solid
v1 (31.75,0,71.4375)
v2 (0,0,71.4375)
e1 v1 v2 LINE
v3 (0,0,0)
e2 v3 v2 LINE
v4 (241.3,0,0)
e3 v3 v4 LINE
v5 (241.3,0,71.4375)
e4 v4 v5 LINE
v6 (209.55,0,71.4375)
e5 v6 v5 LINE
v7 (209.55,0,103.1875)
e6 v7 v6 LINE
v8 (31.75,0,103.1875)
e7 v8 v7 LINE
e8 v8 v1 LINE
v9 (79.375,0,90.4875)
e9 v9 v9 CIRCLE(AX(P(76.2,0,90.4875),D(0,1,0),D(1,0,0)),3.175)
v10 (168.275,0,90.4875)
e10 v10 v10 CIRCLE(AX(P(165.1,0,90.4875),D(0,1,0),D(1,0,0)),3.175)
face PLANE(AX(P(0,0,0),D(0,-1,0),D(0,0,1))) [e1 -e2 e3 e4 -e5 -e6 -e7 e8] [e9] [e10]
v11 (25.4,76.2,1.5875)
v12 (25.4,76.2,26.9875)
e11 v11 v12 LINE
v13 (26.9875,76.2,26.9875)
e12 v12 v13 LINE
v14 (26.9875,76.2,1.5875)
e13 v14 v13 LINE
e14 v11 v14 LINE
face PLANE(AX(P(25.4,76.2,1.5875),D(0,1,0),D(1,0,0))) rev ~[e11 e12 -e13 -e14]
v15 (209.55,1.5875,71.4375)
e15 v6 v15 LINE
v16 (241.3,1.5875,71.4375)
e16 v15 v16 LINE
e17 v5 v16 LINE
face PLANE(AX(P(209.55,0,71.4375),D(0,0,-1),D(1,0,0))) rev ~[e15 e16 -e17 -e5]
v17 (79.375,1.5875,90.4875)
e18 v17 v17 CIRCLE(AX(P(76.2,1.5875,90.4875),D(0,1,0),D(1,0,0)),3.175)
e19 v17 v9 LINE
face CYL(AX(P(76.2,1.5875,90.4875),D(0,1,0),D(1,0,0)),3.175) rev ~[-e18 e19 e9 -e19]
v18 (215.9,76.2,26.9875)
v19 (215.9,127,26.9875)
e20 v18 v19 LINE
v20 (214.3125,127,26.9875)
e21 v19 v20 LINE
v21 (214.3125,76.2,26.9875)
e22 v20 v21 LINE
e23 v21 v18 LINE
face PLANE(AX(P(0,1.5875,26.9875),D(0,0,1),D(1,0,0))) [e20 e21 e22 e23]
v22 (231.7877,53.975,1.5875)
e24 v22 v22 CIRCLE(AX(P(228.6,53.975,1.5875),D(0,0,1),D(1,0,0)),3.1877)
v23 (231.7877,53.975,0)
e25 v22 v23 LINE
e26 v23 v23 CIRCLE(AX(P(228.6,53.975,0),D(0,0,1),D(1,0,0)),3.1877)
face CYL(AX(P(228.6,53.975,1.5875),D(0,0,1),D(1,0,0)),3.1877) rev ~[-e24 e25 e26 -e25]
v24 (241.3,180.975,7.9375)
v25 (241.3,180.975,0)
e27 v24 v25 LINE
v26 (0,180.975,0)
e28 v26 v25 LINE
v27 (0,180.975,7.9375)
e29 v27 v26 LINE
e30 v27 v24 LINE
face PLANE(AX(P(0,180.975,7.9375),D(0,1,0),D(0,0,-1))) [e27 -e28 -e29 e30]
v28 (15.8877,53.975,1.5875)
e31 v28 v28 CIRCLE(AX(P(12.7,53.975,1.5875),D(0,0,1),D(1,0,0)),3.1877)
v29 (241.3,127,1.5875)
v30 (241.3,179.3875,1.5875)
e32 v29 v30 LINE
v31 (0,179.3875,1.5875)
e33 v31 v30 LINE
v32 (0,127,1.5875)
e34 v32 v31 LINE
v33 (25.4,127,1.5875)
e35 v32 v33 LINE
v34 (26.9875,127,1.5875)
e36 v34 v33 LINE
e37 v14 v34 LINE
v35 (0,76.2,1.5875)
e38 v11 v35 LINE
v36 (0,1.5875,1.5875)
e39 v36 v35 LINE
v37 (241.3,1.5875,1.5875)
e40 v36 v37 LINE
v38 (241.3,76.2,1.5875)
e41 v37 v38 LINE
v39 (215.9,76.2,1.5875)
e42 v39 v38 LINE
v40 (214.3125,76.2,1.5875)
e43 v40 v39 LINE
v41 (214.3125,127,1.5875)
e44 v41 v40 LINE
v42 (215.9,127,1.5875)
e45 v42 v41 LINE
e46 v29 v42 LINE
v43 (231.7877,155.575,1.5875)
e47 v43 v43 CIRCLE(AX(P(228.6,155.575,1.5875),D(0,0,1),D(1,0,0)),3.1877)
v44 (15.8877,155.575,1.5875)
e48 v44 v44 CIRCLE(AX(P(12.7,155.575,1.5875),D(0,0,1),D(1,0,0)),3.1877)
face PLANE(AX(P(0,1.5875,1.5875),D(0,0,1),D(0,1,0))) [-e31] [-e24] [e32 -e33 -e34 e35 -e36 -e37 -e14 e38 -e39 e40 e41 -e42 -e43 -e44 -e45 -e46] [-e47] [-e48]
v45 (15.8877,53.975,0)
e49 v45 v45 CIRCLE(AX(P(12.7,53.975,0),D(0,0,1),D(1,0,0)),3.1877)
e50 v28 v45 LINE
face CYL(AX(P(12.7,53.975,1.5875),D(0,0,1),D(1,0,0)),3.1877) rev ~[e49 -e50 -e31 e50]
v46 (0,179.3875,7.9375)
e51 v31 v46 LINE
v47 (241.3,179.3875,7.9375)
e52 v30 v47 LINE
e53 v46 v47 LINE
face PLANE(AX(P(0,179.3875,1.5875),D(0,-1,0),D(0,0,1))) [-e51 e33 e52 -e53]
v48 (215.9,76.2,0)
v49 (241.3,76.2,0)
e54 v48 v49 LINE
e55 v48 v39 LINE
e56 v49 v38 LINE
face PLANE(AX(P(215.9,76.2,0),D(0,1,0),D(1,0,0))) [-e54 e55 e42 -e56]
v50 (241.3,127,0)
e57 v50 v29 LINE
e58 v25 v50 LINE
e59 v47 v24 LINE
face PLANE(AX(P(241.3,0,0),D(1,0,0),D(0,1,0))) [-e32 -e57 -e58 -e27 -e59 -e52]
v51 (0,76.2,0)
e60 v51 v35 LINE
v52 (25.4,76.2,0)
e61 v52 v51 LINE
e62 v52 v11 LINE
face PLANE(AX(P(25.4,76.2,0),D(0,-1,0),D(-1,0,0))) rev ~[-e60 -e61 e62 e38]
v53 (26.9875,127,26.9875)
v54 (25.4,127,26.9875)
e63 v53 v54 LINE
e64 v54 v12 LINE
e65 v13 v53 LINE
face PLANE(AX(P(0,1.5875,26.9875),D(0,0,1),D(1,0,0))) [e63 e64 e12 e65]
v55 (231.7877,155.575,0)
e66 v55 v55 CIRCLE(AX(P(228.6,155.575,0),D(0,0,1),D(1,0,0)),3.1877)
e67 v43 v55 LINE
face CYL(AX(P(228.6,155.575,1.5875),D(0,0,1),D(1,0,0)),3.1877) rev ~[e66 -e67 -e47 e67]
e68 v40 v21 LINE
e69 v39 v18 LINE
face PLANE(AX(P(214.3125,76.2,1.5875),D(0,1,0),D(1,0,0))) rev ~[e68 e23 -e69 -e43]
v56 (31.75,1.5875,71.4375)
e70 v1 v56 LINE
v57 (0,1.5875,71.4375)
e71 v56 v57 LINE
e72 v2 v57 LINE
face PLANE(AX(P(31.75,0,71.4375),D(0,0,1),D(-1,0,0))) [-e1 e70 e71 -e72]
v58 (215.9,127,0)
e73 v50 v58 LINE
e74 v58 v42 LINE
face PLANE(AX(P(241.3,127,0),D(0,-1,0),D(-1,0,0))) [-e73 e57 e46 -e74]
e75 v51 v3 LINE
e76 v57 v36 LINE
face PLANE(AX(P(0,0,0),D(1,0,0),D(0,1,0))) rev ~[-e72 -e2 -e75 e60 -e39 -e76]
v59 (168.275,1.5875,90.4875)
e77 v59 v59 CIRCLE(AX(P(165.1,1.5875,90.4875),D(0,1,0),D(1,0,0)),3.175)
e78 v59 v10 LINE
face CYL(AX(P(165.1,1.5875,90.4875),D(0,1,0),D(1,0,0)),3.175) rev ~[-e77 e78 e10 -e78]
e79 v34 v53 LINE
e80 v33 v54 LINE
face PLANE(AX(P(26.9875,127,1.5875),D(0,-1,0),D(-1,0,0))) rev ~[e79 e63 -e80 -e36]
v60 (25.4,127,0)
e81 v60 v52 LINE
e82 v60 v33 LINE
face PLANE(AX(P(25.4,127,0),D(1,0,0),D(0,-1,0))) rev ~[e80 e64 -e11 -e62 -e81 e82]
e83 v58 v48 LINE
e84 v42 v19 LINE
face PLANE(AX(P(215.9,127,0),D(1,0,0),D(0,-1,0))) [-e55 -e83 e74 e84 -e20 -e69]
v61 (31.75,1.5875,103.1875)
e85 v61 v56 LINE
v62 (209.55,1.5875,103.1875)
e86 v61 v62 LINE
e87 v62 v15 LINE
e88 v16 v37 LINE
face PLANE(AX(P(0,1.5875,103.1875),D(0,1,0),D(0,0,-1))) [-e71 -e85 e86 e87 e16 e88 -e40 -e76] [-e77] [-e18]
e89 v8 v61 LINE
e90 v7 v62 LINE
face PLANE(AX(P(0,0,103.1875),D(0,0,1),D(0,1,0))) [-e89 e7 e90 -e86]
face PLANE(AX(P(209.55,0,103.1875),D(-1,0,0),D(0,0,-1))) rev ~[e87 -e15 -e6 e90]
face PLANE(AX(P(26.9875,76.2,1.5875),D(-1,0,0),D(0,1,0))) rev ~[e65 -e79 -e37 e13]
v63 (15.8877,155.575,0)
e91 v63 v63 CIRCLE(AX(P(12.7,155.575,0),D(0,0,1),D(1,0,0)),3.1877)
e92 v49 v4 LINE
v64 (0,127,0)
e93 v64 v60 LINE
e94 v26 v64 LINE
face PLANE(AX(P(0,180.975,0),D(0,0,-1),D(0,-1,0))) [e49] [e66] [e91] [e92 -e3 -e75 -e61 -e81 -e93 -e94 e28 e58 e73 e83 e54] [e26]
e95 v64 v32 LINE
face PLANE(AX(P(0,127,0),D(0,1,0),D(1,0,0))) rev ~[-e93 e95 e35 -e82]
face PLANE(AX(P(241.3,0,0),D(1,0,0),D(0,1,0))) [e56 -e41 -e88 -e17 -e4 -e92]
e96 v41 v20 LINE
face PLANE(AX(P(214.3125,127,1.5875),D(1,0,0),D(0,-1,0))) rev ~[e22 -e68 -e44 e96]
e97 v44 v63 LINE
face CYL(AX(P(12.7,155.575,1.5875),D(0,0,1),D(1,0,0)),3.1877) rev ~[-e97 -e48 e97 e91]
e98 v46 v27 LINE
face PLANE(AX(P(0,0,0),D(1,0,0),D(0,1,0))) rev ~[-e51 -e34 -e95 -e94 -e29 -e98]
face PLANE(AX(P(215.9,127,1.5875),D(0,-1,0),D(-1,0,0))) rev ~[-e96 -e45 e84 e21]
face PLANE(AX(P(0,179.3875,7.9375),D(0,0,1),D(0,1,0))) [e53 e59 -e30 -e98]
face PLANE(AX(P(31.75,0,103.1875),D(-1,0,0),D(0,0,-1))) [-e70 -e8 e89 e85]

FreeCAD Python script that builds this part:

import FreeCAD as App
import Part
import Sketcher
Q = App.Units.Quantity


def add_polygon(sketch, points):
    """Adds a closed chain of lines whose ends are joined by coincident constraints."""
    first, n = sketch.GeometryCount, len(points)
    for a, b in zip(points, points[1:] + points[:1]):
        sketch.addGeometry(Part.LineSegment(App.Vector(*a, 0), App.Vector(*b, 0)), False)
    for i in range(n):
        sketch.addConstraint(Sketcher.Constraint("Coincident", first + i, 2, first + (i + 1) % n, 1))

doc = App.newDocument("Part")
body = doc.addObject("PartDesign::Body", "Body")

sketch1 = doc.addObject("Sketcher::SketchObject", "Sketch")
body.addObject(sketch1)
sketch1.AttachmentSupport = (doc.YZ_Plane, [""])
sketch1.MapMode = "FlatFace"
add_polygon(sketch1, [(1.6, 1.6), (1.6, 103.2), (0, 103.2), (0, 0), (181, 0), (181, 7.9), (179.4, 7.9), (179.4, 1.6)])
sketch1.addConstraint([
    Sketcher.Constraint("Vertical", 0),
    Sketcher.Constraint("Horizontal", 1),
    Sketcher.Constraint("Vertical", 2),
    Sketcher.Constraint("Horizontal", 3),
    Sketcher.Constraint("Vertical", 4),
    Sketcher.Constraint("Horizontal", 5),
    Sketcher.Constraint("Vertical", 6),
    Sketcher.Constraint("Horizontal", 7),
    Sketcher.Constraint("Coincident", 2, 2, -1, 1),
    Sketcher.Constraint("Equal", 1, 5),
    Sketcher.Constraint("DistanceY", 0, 1, 0, 2, Q("4 in")),
    Sketcher.Constraint("DistanceY", 6, 2, 6, 1, Q("0.25 in")),
    Sketcher.Constraint("DistanceX", 1, 2, 1, 1, Q("0.0625 in")),
    Sketcher.Constraint("DistanceX", 3, 1, 3, 2, Q("7.125 in")),
    Sketcher.Constraint("DistanceY", -1, 1, 6, 2, Q("0.0625 in")),
])
pad1 = doc.addObject("PartDesign::Pad", "Pad")
body.addObject(pad1)
pad1.Profile = sketch1
pad1.Length = Q("9.5 in")

sketch2 = doc.addObject("Sketcher::SketchObject", "Sketch001")
body.addObject(sketch2)
sketch2.AttachmentSupport = (doc.XY_Plane, [""])
sketch2.MapMode = "FlatFace"
add_polygon(sketch2, [(216, 127), (241, 127), (241, 76), (216, 76)])
add_polygon(sketch2, [(25, 76), (0, 76), (0, 127), (25, 127)])
sketch2.addConstraint([
    Sketcher.Constraint("Horizontal", 0),
    Sketcher.Constraint("Vertical", 1),
    Sketcher.Constraint("Horizontal", 2),
    Sketcher.Constraint("Vertical", 3),
    Sketcher.Constraint("Horizontal", 4),
    Sketcher.Constraint("Vertical", 5),
    Sketcher.Constraint("Horizontal", 6),
    Sketcher.Constraint("Vertical", 7),
    Sketcher.Constraint("PointOnObject", 4, 2, -2),
    Sketcher.Constraint("Horizontal", 2, 2, 4, 2),
    Sketcher.Constraint("Horizontal", 3, 2, 5, 2),
    Sketcher.Constraint("Equal", 2, 4),
    Sketcher.Constraint("DistanceX", 0, 1, 0, 2, Q("1 in")),
    Sketcher.Constraint("DistanceY", 1, 2, 1, 1, Q("2 in")),
    Sketcher.Constraint("DistanceY", -1, 1, 1, 2, Q("3 in")),
    Sketcher.Constraint("DistanceX", -1, 1, 0, 2, Q("9.5 in")),
])
pocket1 = doc.addObject("PartDesign::Pocket", "Pocket")
body.addObject(pocket1)
pocket1.Profile = sketch2
pocket1.Type = "UpToFirst"
pocket1.Reversed = True

sketch3 = doc.addObject("Sketcher::SketchObject", "Sketch002")
body.addObject(sketch3)
sketch3.AttachmentSupport = (doc.XY_Plane, [""])
sketch3.MapMode = "FlatFace"
sketch3.AttachmentOffset = App.Placement(App.Vector(0, 0, 0.0625 * 25.4), App.Rotation())
add_polygon(sketch3, [(215.9, 76.2), (215.9, 127), (214.3, 127), (214.3, 76.2)])
add_polygon(sketch3, [(25.4, 127), (25.4, 76.2), (27, 76.2), (27, 127)])
sketch3.addConstraint([
    Sketcher.Constraint("Vertical", 0),
    Sketcher.Constraint("Horizontal", 1),
    Sketcher.Constraint("Vertical", 2),
    Sketcher.Constraint("Horizontal", 3),
    Sketcher.Constraint("Vertical", 4),
    Sketcher.Constraint("Horizontal", 5),
    Sketcher.Constraint("Vertical", 6),
    Sketcher.Constraint("Horizontal", 7),
    Sketcher.Constraint("Horizontal", 3, 2, 4, 2),
    Sketcher.Constraint("Horizontal", 1, 2, 6, 2),
    Sketcher.Constraint("Equal", 3, 5),
    Sketcher.Constraint("DistanceX", 1, 2, 1, 1, Q("0.0625 in")),
    Sketcher.Constraint("DistanceY", 0, 1, 0, 2, Q("2 in")),
    Sketcher.Constraint("DistanceY", -1, 1, 0, 2, Q("5 in")),
    Sketcher.Constraint("DistanceX", -1, 1, 4, 2, Q("1 in")),
    Sketcher.Constraint("DistanceX", -1, 1, 0, 2, Q("8.5 in")),
])
pad2 = doc.addObject("PartDesign::Pad", "Pad001")
body.addObject(pad2)
pad2.Profile = sketch3
pad2.Length = Q("1 in")

sketch4 = doc.addObject("Sketcher::SketchObject", "Sketch003")
body.addObject(sketch4)
sketch4.AttachmentSupport = (doc.XY_Plane, [""])
sketch4.MapMode = "FlatFace"
sketch4.AttachmentOffset = App.Placement(App.Vector(0, 0, 0.0625 * 25.4), App.Rotation())
sketch4.addGeometry([
    Part.Circle(App.Vector(228.6, 155.6, 0), App.Vector(0, 0, 1), 3.2),
    Part.Circle(App.Vector(228.6, 54, 0), App.Vector(0, 0, 1), 3.2),
    Part.Circle(App.Vector(12.7, 155.6, 0), App.Vector(0, 0, 1), 3.2),
    Part.Circle(App.Vector(12.7, 54, 0), App.Vector(0, 0, 1), 3.2),
], False)
sketch4.addConstraint([
    Sketcher.Constraint("Equal", 0, 1),
    Sketcher.Constraint("Equal", 1, 2),
    Sketcher.Constraint("Equal", 2, 3),
    Sketcher.Constraint("Horizontal", 0, 3, 2, 3),
    Sketcher.Constraint("Horizontal", 1, 3, 3, 3),
    Sketcher.Constraint("Vertical", 0, 3, 1, 3),
    Sketcher.Constraint("Vertical", 2, 3, 3, 3),
    Sketcher.Constraint("Diameter", 0, Q("0.251 in")),
    Sketcher.Constraint("DistanceY", 1, 3, 0, 3, Q("4 in")),
    Sketcher.Constraint("DistanceX", -1, 1, 2, 3, Q("0.5 in")),
    Sketcher.Constraint("DistanceX", -1, 1, 0, 3, Q("9 in")),
    Sketcher.Constraint("DistanceY", -1, 1, 0, 3, Q("6.125 in")),
])
pocket2 = doc.addObject("PartDesign::Pocket", "Pocket001")
body.addObject(pocket2)
pocket2.Profile = sketch4
pocket2.Type = "ThroughAll"

sketch5 = doc.addObject("Sketcher::SketchObject", "Sketch004")
body.addObject(sketch5)
sketch5.AttachmentSupport = (doc.XZ_Plane, [""])
sketch5.MapMode = "FlatFace"
add_polygon(sketch5, [(32, 103), (0, 103), (0, 71), (32, 71)])
add_polygon(sketch5, [(241, 71), (241, 103), (210, 103), (210, 71)])
sketch5.addConstraint([
    Sketcher.Constraint("Horizontal", 0),
    Sketcher.Constraint("Vertical", 1),
    Sketcher.Constraint("Horizontal", 2),
    Sketcher.Constraint("Vertical", 3),
    Sketcher.Constraint("Vertical", 4),
    Sketcher.Constraint("Horizontal", 5),
    Sketcher.Constraint("Vertical", 6),
    Sketcher.Constraint("Horizontal", 7),
    Sketcher.Constraint("PointOnObject", 0, 2, -2),
    Sketcher.Constraint("Horizontal", 3, 2, 4, 2),
    Sketcher.Constraint("Horizontal", 2, 2, 6, 2),
    Sketcher.Constraint("Equal", 2, 5),
    Sketcher.Constraint("Equal", 7, 1),
    Sketcher.Constraint("DistanceX", 0, 2, 0, 1, Q("1.25 in")),
    Sketcher.Constraint("DistanceX", 3, 2, 5, 2, Q("7 in")),
    Sketcher.Constraint("DistanceY", -1, 1, 0, 2, Q("4.0625 in")),
])
pocket3 = doc.addObject("PartDesign::Pocket", "Pocket002")
body.addObject(pocket3)
pocket3.Profile = sketch5
pocket3.Type = "UpToFirst"

sketch6 = doc.addObject("Sketcher::SketchObject", "Sketch005")
body.addObject(sketch6)
sketch6.AttachmentSupport = (doc.XZ_Plane, [""])
sketch6.MapMode = "FlatFace"
sketch6.AttachmentOffset = App.Placement(App.Vector(0, 0, -0.0625 * 25.4), App.Rotation())
sketch6.addGeometry([
    Part.Circle(App.Vector(76.2, 90.5, 0), App.Vector(0, 0, 1), 3.2),
    Part.Circle(App.Vector(165.1, 90.5, 0), App.Vector(0, 0, 1), 3.2),
], False)
sketch6.addConstraint([
    Sketcher.Constraint("Equal", 0, 1),
    Sketcher.Constraint("Horizontal", 0, 3, 1, 3),
    Sketcher.Constraint("Diameter", 0, Q("0.25 in")),
    Sketcher.Constraint("DistanceX", 0, 3, 1, 3, Q("3.5 in")),
    Sketcher.Constraint("DistanceX", -1, 1, 0, 3, Q("3 in")),
    Sketcher.Constraint("DistanceY", -1, 1, 0, 3, Q("3.5625 in")),
])
pocket4 = doc.addObject("PartDesign::Pocket", "Pocket003")
body.addObject(pocket4)
pocket4.Profile = sketch6
pocket4.Type = "UpToFirst"
pocket4.Reversed = True

doc.recompute()
